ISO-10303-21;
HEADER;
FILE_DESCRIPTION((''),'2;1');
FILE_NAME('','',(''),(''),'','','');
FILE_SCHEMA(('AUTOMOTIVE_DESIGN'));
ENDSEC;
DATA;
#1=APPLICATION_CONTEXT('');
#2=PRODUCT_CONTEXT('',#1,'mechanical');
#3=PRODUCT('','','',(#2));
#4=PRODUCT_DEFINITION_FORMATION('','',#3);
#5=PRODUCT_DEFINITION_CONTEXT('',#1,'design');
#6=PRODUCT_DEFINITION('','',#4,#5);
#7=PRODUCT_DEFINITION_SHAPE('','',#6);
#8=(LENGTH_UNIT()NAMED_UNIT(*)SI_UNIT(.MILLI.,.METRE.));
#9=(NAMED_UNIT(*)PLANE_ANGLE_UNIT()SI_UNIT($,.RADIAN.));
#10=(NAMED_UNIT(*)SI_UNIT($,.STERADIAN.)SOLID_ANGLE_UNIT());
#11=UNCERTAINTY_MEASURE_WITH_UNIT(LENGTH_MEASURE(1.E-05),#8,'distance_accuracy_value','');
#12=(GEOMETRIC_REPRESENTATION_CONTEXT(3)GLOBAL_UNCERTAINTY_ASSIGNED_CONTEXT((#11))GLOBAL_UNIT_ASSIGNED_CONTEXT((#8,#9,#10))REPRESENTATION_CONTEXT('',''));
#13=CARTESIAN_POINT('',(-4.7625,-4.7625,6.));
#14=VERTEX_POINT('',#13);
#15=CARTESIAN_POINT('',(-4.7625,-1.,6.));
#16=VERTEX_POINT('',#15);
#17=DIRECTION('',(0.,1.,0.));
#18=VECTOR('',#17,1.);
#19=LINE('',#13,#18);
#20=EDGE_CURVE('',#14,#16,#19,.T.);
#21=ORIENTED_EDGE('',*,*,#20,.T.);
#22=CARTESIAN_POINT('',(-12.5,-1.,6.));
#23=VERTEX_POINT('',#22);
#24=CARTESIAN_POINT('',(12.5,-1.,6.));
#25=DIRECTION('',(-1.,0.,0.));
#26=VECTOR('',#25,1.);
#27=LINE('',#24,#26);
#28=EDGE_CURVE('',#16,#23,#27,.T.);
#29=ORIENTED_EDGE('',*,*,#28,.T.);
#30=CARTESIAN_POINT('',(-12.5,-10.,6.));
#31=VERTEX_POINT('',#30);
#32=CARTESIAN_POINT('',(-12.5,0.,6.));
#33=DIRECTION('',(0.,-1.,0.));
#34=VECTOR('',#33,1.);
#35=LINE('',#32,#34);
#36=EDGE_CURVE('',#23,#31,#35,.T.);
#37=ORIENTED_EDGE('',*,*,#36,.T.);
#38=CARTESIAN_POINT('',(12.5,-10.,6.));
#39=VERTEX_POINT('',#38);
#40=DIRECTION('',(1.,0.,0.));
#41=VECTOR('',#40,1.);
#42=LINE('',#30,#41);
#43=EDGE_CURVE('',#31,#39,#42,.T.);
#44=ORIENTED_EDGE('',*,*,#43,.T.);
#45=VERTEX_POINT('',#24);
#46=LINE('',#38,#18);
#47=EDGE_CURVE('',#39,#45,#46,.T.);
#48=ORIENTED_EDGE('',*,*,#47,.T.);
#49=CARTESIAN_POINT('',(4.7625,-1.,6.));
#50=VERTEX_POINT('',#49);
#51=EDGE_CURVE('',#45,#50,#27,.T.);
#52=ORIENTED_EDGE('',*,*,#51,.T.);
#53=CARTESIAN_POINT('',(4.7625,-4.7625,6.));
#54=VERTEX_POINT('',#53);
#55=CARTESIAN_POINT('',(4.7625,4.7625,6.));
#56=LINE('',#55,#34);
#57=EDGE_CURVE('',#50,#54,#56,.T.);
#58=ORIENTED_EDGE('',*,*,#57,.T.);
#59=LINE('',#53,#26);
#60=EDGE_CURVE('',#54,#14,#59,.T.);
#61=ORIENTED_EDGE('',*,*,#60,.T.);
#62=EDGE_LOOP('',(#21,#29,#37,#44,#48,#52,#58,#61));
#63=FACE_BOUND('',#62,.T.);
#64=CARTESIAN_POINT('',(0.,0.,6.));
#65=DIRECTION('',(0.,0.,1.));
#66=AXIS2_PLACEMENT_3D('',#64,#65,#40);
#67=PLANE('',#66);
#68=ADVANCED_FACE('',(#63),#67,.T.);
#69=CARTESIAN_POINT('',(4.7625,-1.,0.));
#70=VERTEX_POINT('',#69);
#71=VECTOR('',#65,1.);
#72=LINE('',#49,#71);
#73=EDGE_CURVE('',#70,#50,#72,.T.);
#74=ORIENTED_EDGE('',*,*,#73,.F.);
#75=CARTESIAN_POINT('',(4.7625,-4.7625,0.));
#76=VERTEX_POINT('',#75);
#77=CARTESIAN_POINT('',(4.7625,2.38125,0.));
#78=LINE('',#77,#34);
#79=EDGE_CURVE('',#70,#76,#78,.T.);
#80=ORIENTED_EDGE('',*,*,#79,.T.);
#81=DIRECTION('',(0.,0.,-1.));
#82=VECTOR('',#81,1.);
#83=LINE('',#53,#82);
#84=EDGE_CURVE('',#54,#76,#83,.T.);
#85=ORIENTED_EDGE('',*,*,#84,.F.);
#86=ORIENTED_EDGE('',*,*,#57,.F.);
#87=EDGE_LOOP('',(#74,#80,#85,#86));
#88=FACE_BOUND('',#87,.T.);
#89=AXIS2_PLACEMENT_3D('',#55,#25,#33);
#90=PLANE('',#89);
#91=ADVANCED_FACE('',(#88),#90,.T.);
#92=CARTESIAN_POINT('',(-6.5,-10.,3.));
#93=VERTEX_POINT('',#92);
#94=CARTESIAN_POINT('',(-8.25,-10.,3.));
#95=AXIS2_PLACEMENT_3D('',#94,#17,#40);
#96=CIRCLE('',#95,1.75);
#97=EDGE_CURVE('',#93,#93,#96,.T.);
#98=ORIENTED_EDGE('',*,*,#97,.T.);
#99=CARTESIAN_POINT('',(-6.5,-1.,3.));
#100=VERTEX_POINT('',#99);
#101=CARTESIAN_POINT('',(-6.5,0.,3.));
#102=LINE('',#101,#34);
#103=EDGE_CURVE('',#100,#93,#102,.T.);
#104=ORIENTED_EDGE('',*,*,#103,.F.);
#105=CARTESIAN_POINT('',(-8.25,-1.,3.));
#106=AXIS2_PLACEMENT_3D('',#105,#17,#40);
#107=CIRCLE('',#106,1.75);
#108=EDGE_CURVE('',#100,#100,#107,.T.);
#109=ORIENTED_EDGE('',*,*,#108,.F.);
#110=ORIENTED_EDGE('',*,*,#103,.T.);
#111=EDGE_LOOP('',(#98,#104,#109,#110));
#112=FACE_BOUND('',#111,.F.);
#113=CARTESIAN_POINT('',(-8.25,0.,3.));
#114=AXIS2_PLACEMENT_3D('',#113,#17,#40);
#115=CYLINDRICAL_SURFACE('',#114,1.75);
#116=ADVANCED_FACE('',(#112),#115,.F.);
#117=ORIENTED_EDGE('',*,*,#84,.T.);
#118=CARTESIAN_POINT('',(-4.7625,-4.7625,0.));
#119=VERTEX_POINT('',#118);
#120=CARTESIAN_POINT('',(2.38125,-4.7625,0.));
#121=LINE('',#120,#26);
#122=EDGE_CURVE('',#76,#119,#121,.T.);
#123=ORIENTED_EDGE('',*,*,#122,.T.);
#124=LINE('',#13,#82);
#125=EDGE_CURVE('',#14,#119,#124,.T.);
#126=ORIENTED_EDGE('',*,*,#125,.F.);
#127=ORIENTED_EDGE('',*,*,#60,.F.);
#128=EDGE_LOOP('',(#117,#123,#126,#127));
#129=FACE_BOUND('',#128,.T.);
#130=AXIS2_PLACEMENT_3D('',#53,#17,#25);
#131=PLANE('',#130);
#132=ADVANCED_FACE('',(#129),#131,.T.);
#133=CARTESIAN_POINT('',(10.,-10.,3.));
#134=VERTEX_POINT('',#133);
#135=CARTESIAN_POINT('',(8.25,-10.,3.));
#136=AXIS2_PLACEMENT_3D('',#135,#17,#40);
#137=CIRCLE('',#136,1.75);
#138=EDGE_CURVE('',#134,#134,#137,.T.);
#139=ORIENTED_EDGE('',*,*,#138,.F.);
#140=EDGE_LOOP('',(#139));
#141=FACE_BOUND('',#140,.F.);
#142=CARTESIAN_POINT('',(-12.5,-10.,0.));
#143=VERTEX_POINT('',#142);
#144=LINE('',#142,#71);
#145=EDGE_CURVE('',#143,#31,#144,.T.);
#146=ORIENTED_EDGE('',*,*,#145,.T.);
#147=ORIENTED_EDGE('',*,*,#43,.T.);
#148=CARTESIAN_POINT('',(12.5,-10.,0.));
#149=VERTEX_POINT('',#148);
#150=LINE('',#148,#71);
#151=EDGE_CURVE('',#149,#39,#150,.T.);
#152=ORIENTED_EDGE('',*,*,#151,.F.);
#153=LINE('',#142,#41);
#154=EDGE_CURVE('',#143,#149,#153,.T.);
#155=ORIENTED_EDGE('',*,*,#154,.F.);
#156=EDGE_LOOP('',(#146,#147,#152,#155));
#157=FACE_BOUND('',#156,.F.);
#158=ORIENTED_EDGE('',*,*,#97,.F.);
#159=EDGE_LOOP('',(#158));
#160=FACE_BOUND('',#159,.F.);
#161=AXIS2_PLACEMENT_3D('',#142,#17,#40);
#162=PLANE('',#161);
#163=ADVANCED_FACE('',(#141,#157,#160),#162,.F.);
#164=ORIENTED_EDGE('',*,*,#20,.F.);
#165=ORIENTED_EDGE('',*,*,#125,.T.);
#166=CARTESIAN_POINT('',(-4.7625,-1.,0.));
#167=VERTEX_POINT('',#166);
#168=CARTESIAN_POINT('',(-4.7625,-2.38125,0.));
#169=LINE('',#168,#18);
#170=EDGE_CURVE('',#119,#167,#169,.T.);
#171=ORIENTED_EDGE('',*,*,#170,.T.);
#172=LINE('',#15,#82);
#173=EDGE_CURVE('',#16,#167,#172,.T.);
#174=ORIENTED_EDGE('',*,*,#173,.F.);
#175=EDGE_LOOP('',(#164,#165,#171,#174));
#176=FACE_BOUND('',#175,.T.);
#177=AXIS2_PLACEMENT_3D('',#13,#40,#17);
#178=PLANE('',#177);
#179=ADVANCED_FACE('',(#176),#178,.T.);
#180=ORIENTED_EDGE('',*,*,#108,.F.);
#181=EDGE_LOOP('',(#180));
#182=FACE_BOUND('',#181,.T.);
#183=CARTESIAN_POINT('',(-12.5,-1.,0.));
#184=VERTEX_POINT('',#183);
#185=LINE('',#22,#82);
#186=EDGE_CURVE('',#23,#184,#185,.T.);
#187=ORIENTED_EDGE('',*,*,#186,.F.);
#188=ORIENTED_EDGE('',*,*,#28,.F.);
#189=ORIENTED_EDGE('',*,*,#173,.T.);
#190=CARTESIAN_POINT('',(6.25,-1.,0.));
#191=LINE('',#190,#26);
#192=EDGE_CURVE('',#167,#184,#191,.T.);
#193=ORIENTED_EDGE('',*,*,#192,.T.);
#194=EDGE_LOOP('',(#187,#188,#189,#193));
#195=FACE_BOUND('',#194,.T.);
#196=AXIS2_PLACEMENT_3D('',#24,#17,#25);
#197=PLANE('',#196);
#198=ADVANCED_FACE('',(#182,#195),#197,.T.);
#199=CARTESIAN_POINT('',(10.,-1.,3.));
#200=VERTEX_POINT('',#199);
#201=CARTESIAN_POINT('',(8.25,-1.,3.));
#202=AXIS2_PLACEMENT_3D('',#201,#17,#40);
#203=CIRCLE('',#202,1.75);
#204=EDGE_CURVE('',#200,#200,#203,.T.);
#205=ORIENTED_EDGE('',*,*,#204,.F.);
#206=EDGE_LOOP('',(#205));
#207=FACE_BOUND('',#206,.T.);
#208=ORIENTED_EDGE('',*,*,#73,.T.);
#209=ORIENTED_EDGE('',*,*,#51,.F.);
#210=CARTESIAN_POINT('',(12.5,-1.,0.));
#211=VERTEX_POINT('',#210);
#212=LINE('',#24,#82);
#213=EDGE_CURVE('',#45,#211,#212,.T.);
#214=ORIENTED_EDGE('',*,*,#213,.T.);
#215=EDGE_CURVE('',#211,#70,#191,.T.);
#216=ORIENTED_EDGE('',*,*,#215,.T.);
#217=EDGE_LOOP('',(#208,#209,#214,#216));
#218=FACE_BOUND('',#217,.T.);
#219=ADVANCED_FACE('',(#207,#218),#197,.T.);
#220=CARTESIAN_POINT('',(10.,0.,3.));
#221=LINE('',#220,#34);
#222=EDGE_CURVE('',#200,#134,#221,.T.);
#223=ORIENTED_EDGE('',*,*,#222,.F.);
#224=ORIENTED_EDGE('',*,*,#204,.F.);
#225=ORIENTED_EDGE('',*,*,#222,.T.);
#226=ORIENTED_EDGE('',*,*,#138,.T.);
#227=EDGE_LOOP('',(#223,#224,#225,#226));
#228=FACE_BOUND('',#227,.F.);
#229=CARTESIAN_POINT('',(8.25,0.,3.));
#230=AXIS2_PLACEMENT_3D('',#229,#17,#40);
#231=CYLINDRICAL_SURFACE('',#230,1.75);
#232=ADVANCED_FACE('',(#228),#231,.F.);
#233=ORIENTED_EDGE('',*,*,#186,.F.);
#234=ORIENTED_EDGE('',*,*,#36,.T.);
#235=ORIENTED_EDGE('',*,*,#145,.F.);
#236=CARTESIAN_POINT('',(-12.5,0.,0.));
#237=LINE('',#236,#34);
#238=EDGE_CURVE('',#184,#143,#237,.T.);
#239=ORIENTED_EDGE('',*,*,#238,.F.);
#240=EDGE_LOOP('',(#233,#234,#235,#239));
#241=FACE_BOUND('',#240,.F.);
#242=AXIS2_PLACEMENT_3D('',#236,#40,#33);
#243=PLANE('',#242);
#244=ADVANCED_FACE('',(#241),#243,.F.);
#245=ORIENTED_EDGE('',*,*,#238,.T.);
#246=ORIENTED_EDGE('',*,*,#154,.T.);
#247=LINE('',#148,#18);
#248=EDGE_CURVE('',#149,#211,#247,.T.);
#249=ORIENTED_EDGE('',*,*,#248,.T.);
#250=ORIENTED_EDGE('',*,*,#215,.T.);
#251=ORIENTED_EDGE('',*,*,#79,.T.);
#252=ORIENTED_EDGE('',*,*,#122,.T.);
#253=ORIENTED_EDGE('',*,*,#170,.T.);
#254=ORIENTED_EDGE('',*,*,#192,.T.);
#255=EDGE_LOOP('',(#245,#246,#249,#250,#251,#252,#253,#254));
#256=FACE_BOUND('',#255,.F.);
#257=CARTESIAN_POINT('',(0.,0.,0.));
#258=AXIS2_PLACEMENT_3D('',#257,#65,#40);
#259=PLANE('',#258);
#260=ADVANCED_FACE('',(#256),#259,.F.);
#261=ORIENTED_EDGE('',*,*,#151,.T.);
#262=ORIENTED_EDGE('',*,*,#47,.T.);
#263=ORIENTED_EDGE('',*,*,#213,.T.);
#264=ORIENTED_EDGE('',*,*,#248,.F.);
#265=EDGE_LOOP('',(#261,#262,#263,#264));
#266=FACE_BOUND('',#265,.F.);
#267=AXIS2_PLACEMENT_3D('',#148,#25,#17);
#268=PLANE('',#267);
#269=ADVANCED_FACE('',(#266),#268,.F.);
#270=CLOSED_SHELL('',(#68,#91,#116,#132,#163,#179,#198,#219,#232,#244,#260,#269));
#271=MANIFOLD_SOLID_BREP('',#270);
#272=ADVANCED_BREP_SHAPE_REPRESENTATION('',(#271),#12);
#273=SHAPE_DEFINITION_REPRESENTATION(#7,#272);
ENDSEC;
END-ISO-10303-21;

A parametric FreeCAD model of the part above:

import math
import FreeCAD as App
import Part
import Sketcher

V = App.Vector

doc = App.newDocument("Part")
params = doc.addObject("Spreadsheet::Sheet", "Params")
for row, (alias, value) in enumerate([
    ("sketch1_radius", "4 mm"),
    ("sketch1_width", "25 mm"),
    ("sketch1_height", "10 mm"),
    ("pad1_length", "6 mm"),
    ("sketch2_diameter", "3.5 mm"),
    ("sketch3_height", "1 mm"),
    ("sketch3_width", "25 mm"),
], start=1):
    params.set(f"A{row}", alias)
    params.set(f"B{row}", "=" + value)
    params.setAlias(f"B{row}", alias)

body = doc.addObject("PartDesign::Body", "Body")

sketch1 = body.newObject("Sketcher::SketchObject", "Sketch")
sketch1.AttachmentSupport = (doc.getObject("XY_Plane"), [""])
sketch1.MapMode = "FlatFace"
sketch1.addGeometry(Part.ArcOfCircle(Part.Circle(V(0, 0, 0), V(0, 0, 1), 4), math.radians(180), math.radians(360)), False)
sketch1.addGeometry(Part.LineSegment(V(-4, 0, 0), V(-12.5, 0, 0)), False)
sketch1.addGeometry(Part.LineSegment(V(-12.5, 0, 0), V(-12.5, -10, 0)), False)
sketch1.addGeometry(Part.LineSegment(V(-12.5, -10, 0), V(12.5, -10, 0)), False)
sketch1.addGeometry(Part.LineSegment(V(12.5, -10, 0), V(12.5, 0, 0)), False)
sketch1.addGeometry(Part.LineSegment(V(12.5, 0, 0), V(4, 0, 0)), False)
sketch1.addConstraint(Sketcher.Constraint("Coincident", 0, 1, 1, 1))
sketch1.addConstraint(Sketcher.Constraint("Coincident", 1, 2, 2, 1))
sketch1.addConstraint(Sketcher.Constraint("Coincident", 2, 2, 3, 1))
sketch1.addConstraint(Sketcher.Constraint("Coincident", 3, 2, 4, 1))
sketch1.addConstraint(Sketcher.Constraint("Coincident", 4, 2, 5, 1))
sketch1.addConstraint(Sketcher.Constraint("Coincident", 5, 2, 0, 2))
sketch1.addConstraint(Sketcher.Constraint("Horizontal", 1))
sketch1.addConstraint(Sketcher.Constraint("Vertical", 2))
sketch1.addConstraint(Sketcher.Constraint("Horizontal", 3))
sketch1.addConstraint(Sketcher.Constraint("Vertical", 4))
sketch1.addConstraint(Sketcher.Constraint("Horizontal", 5))
sketch1.addConstraint(Sketcher.Constraint("Coincident", 0, 3, -1, 1))
sketch1.addConstraint(Sketcher.Constraint("Symmetric", 1, 2, 4, 2, -1, 1))
sketch1.addConstraint(Sketcher.Constraint("PointOnObject", 0, 1, -1))
sketch1.addConstraint(Sketcher.Constraint("Radius", 0, 4.0))
sketch1.addConstraint(Sketcher.Constraint("DistanceX", 3, 1, 3, 2, 25.0))
sketch1.addConstraint(Sketcher.Constraint("DistanceY", 2, 2, 2, 1, 10.0))
sketch1.setExpression("Constraints[14]", "Params.sketch1_radius")
sketch1.setExpression("Constraints[15]", "Params.sketch1_width")
sketch1.setExpression("Constraints[16]", "Params.sketch1_height")
pad1 = body.newObject("PartDesign::Pad", "Pad")
pad1.Profile = sketch1
pad1.setExpression("Length", "Params.pad1_length")

sketch2 = body.newObject("Sketcher::SketchObject", "Sketch001")
sketch2.AttachmentSupport = (doc.getObject("XZ_Plane"), [""])
sketch2.MapMode = "FlatFace"
sketch2.addGeometry(Part.Circle(V(-8.2, 3, 0), V(0, 0, 1), 1.8), False)
sketch2.addGeometry(Part.Circle(V(8.2, 3, 0), V(0, 0, 1), 1.8), False)
sketch2.addConstraint(Sketcher.Constraint("Equal", 0, 1))
sketch2.addConstraint(Sketcher.Constraint("Symmetric", 0, 3, 1, 3, -2))
sketch2.addConstraint(Sketcher.Constraint("Diameter", 0, 3.5))
sketch2.addConstraint(Sketcher.Constraint("DistanceY", -1, 1, 0, 3, 3.0))
sketch2.addConstraint(Sketcher.Constraint("DistanceX", 0, 3, 1, 3, 16.5))
sketch2.setExpression("Constraints[2]", "Params.sketch2_diameter")
pocket1 = body.newObject("PartDesign::Pocket", "Pocket")
pocket1.Profile = sketch2
pocket1.Type = "ThroughAll"
pocket1.Reversed = True

sketch3 = body.newObject("Sketcher::SketchObject", "Sketch002")
sketch3.AttachmentSupport = (doc.getObject("XY_Plane"), [""])
sketch3.MapMode = "FlatFace"
sketch3.AttachmentOffset = App.Placement(V(0, 0, 6), App.Rotation())
sketch3.addGeometry(Part.LineSegment(V(-12.5, -1, 0), V(12.5, -1, 0)), False)
sketch3.addGeometry(Part.LineSegment(V(12.5, -1, 0), V(12.5, 0, 0)), False)
sketch3.addGeometry(Part.LineSegment(V(12.5, 0, 0), V(-12.5, 0, 0)), False)
sketch3.addGeometry(Part.LineSegment(V(-12.5, 0, 0), V(-12.5, -1, 0)), False)
sketch3.addConstraint(Sketcher.Constraint("Coincident", 0, 2, 1, 1))
sketch3.addConstraint(Sketcher.Constraint("Coincident", 1, 2, 2, 1))
sketch3.addConstraint(Sketcher.Constraint("Coincident", 2, 2, 3, 1))
sketch3.addConstraint(Sketcher.Constraint("Coincident", 3, 2, 0, 1))
sketch3.addConstraint(Sketcher.Constraint("Horizontal", 0))
sketch3.addConstraint(Sketcher.Constraint("Vertical", 1))
sketch3.addConstraint(Sketcher.Constraint("Horizontal", 2))
sketch3.addConstraint(Sketcher.Constraint("Vertical", 3))
sketch3.addConstraint(Sketcher.Constraint("Symmetric", 1, 2, 2, 2, -1, 1))
sketch3.addConstraint(Sketcher.Constraint("DistanceY", 1, 1, 1, 2, 1.0))
sketch3.addConstraint(Sketcher.Constraint("DistanceX", 0, 1, 0, 2, 25.0))
sketch3.setExpression("Constraints[9]", "Params.sketch3_height")
sketch3.setExpression("Constraints[10]", "Params.sketch3_width")
pocket2 = body.newObject("PartDesign::Pocket", "Pocket001")
pocket2.Profile = sketch3
pocket2.Type = "ThroughAll"

sketch4 = body.newObject("Sketcher::SketchObject", "Sketch003")
sketch4.AttachmentSupport = (doc.getObject("XY_Plane"), [""])
sketch4.MapMode = "FlatFace"
sketch4.AttachmentOffset = App.Placement(V(0, 0, 6), App.Rotation())
sketch4.addGeometry(Part.LineSegment(V(-5, -5, 0), V(5, -5, 0)), False)
sketch4.addGeometry(Part.LineSegment(V(5, -5, 0), V(5, 5, 0)), False)
sketch4.addGeometry(Part.LineSegment(V(5, 5, 0), V(-5, 5, 0)), False)
sketch4.addGeometry(Part.LineSegment(V(-5, 5, 0), V(-5, -5, 0)), False)
sketch4.addConstraint(Sketcher.Constraint("Coincident", 0, 2, 1, 1))
sketch4.addConstraint(Sketcher.Constraint("Coincident", 1, 2, 2, 1))
sketch4.addConstraint(Sketcher.Constraint("Coincident", 2, 2, 3, 1))
sketch4.addConstraint(Sketcher.Constraint("Coincident", 3, 2, 0, 1))
sketch4.addConstraint(Sketcher.Constraint("Horizontal", 0))
sketch4.addConstraint(Sketcher.Constraint("Vertical", 1))
sketch4.addConstraint(Sketcher.Constraint("Horizontal", 2))
sketch4.addConstraint(Sketcher.Constraint("Vertical", 3))
sketch4.addConstraint(Sketcher.Constraint("Symmetric", 0, 2, 2, 2, -1, 1))
sketch4.addConstraint(Sketcher.Constraint("Equal", 2, 1))
sketch4.addConstraint(Sketcher.Constraint("DistanceX", 0, 1, 0, 2, 9.525))
pocket3 = body.newObject("PartDesign::Pocket", "Pocket002")
pocket3.Profile = sketch4
pocket3.Type = "ThroughAll"

doc.recompute()
